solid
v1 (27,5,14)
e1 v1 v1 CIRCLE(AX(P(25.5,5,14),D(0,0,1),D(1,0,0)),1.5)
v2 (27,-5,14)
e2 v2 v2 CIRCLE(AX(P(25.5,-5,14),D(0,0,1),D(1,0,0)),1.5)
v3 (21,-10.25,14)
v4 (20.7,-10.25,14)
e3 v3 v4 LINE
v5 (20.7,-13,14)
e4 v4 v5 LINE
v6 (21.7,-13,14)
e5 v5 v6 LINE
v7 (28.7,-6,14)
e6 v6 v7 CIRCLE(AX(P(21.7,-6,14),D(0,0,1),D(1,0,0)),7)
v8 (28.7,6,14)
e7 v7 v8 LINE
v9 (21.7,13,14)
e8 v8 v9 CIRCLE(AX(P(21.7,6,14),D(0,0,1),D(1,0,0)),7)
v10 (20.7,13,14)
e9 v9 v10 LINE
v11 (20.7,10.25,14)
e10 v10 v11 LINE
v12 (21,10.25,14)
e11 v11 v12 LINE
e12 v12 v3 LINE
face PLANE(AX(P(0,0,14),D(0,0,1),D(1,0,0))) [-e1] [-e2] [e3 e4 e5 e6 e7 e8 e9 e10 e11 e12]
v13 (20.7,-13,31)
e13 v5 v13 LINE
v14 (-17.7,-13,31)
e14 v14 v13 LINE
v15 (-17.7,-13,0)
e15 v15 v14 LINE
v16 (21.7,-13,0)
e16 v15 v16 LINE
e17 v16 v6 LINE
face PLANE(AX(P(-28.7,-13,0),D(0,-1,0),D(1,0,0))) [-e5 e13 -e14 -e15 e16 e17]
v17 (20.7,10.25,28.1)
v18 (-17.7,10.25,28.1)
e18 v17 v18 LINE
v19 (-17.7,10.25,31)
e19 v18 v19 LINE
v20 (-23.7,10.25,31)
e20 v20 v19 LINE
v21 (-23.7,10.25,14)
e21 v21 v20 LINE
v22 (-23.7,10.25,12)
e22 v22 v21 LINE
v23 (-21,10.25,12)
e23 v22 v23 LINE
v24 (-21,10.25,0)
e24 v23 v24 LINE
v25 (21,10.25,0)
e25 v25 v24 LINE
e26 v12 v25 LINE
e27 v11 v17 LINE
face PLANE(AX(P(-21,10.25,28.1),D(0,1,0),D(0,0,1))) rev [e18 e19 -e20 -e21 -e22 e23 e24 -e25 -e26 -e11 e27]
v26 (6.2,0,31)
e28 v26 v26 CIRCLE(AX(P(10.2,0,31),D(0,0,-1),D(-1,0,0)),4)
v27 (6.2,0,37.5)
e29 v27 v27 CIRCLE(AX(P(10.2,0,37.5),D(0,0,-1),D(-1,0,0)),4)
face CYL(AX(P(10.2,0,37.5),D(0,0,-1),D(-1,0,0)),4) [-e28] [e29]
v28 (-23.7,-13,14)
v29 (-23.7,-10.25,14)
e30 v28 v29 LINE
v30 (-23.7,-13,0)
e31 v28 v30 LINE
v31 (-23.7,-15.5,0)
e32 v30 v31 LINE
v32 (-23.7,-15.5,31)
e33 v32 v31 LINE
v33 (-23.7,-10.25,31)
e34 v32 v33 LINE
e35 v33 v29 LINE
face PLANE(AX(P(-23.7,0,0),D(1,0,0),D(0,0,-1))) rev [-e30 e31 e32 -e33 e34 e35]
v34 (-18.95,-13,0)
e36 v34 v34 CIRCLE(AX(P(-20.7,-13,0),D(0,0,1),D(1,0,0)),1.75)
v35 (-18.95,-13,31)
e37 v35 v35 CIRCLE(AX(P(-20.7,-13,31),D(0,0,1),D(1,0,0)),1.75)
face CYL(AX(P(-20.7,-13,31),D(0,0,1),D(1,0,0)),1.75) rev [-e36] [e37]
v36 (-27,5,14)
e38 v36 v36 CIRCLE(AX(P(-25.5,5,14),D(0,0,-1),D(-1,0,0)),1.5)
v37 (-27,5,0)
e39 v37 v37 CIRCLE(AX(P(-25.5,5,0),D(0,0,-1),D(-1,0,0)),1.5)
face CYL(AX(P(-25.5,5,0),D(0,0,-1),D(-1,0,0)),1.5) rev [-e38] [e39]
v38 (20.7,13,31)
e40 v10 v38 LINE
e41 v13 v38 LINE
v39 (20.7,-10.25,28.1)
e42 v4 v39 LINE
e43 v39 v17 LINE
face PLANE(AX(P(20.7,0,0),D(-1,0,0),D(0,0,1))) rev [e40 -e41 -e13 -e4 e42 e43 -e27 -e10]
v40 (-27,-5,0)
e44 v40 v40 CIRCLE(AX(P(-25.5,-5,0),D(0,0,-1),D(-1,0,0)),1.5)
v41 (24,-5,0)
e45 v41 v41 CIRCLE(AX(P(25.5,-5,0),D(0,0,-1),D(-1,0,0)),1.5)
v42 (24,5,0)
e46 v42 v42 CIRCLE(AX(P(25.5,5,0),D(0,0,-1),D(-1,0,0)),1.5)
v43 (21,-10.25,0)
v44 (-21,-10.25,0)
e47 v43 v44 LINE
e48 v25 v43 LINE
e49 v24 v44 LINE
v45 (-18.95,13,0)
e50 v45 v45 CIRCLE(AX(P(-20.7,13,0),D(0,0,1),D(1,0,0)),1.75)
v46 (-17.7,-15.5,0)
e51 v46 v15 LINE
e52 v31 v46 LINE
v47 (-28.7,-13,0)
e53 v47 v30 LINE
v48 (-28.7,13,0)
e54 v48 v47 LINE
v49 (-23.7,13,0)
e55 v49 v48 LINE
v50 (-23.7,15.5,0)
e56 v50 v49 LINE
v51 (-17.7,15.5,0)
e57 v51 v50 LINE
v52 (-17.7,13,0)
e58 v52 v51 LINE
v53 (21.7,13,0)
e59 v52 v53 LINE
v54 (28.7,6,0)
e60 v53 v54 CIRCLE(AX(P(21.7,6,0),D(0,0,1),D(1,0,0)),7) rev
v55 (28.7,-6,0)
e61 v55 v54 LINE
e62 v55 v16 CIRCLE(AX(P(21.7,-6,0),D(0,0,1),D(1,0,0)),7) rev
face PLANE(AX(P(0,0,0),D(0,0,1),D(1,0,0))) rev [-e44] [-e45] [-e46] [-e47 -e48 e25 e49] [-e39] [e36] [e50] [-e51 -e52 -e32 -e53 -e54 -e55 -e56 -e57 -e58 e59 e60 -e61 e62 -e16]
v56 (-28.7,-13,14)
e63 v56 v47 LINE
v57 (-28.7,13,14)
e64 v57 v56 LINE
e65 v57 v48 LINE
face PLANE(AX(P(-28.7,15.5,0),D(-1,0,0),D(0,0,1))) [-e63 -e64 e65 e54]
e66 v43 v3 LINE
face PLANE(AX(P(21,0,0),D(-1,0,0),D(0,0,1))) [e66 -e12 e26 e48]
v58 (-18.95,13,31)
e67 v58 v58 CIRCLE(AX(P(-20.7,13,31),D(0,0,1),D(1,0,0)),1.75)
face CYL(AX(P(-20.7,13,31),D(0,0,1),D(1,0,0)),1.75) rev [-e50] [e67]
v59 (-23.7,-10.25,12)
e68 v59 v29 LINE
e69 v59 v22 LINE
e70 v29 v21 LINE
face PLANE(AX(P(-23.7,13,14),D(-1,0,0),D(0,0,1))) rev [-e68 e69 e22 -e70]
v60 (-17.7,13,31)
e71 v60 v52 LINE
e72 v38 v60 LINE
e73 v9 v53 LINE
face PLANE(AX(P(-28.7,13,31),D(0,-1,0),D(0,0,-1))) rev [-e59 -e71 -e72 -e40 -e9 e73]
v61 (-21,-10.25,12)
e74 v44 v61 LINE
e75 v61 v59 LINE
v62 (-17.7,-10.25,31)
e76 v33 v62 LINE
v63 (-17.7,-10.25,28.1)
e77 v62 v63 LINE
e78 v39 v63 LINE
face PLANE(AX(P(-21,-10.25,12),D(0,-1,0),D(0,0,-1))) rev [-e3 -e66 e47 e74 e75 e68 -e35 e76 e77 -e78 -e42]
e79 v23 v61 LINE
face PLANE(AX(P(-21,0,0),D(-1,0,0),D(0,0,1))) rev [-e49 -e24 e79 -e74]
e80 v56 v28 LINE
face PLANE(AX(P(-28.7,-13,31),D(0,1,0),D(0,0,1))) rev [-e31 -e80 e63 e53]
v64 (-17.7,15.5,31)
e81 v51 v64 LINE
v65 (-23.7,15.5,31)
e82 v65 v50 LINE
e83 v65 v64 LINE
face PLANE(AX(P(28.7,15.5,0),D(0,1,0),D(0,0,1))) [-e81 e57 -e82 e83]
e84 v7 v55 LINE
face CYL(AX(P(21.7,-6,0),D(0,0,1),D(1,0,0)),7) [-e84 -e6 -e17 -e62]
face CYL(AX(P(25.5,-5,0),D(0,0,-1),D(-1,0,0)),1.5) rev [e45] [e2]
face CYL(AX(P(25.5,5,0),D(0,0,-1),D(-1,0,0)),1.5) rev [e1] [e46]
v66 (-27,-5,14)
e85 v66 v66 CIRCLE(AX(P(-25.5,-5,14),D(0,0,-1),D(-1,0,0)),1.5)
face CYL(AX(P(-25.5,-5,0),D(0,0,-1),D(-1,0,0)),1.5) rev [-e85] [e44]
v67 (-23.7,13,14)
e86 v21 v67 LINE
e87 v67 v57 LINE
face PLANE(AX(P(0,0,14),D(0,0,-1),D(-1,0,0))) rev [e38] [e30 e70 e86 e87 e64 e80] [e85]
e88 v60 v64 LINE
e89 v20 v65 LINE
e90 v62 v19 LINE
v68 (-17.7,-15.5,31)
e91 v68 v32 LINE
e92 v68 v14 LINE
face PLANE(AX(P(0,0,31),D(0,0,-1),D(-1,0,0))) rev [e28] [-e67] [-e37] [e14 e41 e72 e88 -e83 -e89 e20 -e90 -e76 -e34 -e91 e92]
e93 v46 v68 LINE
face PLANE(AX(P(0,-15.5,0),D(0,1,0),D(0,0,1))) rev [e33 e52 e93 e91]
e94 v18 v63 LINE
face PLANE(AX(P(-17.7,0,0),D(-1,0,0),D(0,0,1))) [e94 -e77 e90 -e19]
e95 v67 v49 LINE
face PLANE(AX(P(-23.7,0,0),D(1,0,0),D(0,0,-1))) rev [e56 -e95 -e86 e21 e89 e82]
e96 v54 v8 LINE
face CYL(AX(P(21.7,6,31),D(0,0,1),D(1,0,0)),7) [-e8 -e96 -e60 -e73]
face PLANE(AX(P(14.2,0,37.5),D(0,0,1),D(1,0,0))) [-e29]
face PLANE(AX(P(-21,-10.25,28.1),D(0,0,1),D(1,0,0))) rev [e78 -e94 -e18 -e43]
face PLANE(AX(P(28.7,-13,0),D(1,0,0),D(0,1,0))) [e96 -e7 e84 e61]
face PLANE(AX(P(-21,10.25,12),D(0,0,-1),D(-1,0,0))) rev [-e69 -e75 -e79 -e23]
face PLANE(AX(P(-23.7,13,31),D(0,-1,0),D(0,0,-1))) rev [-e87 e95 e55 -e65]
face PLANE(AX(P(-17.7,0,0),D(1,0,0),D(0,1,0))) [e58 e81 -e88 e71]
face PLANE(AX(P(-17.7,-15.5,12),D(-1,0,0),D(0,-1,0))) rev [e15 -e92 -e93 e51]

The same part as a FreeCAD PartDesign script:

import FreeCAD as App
import Part
import Sketcher

V = App.Vector


def edges_at(feature, points):
    """Names of the edges that pass closest to the given points."""
    edges = feature.Shape.Edges
    near = lambda p: min(range(len(edges)), key=lambda i: edges[i].distToShape(Part.Vertex(*p))[0])
    return sorted({f"Edge{near(p) + 1}" for p in points})

doc = App.newDocument("Part")
body = doc.addObject("PartDesign::Body", "Body")

# Sketch on XY plane
sketch1 = body.newObject("Sketcher::SketchObject", "Sketch")
sketch1.AttachmentSupport = (doc.getObject("XY_Plane"), [""])
sketch1.MapMode = "FlatFace"
sketch1.AttachmentOffset = App.Placement(V(0, 0, 12), App.Rotation())
sketch1.addGeometry([
    Part.LineSegment(V(-29, 16, 0), V(-29, -13, 0)),
    Part.LineSegment(V(-29, -13, 0), V(29, -13, 0)),
    Part.LineSegment(V(29, -13, 0), V(29, 16, 0)),
    Part.LineSegment(V(29, 16, 0), V(-29, 16, 0)),
], False)
sketch1.addConstraint([
    Sketcher.Constraint("Coincident", 0, 2, 1, 1),
    Sketcher.Constraint("Coincident", 1, 2, 2, 1),
    Sketcher.Constraint("Coincident", 2, 2, 3, 1),
    Sketcher.Constraint("Coincident", 3, 2, 0, 1),
    Sketcher.Constraint("Vertical", 0),
    Sketcher.Constraint("Horizontal", 1),
    Sketcher.Constraint("Vertical", 2),
    Sketcher.Constraint("Horizontal", 3),
    Sketcher.Constraint("DistanceX", 1, 1, 1, 2, 57.4),
    Sketcher.Constraint("DistanceY", 0, 2, 0, 1, 28.5),
    Sketcher.Constraint("DistanceY", 0, 2, -1, 1, 13.0),
    Sketcher.Constraint("DistanceX", 0, 2, -1, 1, 28.7),
])
pad1 = body.newObject("PartDesign::Pad", "Pad")
pad1.Profile = sketch1
pad1.Length = 12
pad1.Reversed = True

# Sketch on XY plane
sketch2 = body.newObject("Sketcher::SketchObject", "Sketch001")
sketch2.AttachmentSupport = (doc.getObject("XY_Plane"), [""])
sketch2.MapMode = "FlatFace"
sketch2.AttachmentOffset = App.Placement(V(0, 0, 12), App.Rotation())
sketch2.addGeometry([
    Part.LineSegment(V(-29, 13, 0), V(-29, -13, 0)),
    Part.LineSegment(V(-29, -13, 0), V(29, -13, 0)),
    Part.LineSegment(V(29, -13, 0), V(29, 13, 0)),
    Part.LineSegment(V(29, 13, 0), V(-29, 13, 0)),
], False)
sketch2.addConstraint([
    Sketcher.Constraint("Coincident", 0, 2, 1, 1),
    Sketcher.Constraint("Coincident", 1, 2, 2, 1),
    Sketcher.Constraint("Coincident", 2, 2, 3, 1),
    Sketcher.Constraint("Coincident", 3, 2, 0, 1),
    Sketcher.Constraint("Vertical", 0),
    Sketcher.Constraint("Horizontal", 1),
    Sketcher.Constraint("Vertical", 2),
    Sketcher.Constraint("Horizontal", 3),
    Sketcher.Constraint("Symmetric", 0, 2, 2, 2, -1, 1),
    Sketcher.Constraint("DistanceY", 0, 2, 0, 1, 26.0),
    Sketcher.Constraint("DistanceX", 1, 1, 1, 2, 57.4),
])
pad2 = body.newObject("PartDesign::Pad", "Pad001")
pad2.Profile = sketch2
pad2.Length = 19

# Sketch on YZ plane
sketch3 = body.newObject("Sketcher::SketchObject", "Sketch002")
sketch3.AttachmentSupport = (doc.getObject("YZ_Plane"), [""])
sketch3.MapMode = "FlatFace"
sketch3.AttachmentOffset = App.Placement(V(0, 0, -28.7), App.Rotation())
sketch3.addGeometry([
    Part.LineSegment(V(10, 12, 0), V(-10, 12, 0)),
    Part.LineSegment(V(-10, 12, 0), V(-10, 28, 0)),
    Part.LineSegment(V(-10, 28, 0), V(10, 28, 0)),
    Part.LineSegment(V(10, 28, 0), V(10, 12, 0)),
], False)
sketch3.addConstraint([
    Sketcher.Constraint("Coincident", 0, 2, 1, 1),
    Sketcher.Constraint("Coincident", 1, 2, 2, 1),
    Sketcher.Constraint("Coincident", 2, 2, 3, 1),
    Sketcher.Constraint("Coincident", 3, 2, 0, 1),
    Sketcher.Constraint("Horizontal", 0),
    Sketcher.Constraint("Vertical", 1),
    Sketcher.Constraint("Horizontal", 2),
    Sketcher.Constraint("Vertical", 3),
    Sketcher.Constraint("DistanceX", 0, 2, 0, 1, 20.5),
    Sketcher.Constraint("DistanceY", 1, 1, 1, 2, 16.1),
    Sketcher.Constraint("DistanceY", -1, 1, 0, 2, 12.0),
    Sketcher.Constraint("DistanceX", 0, 2, -1, 1, 10.25),
])
pocket1 = body.newObject("PartDesign::Pocket", "Pocket")
pocket1.Profile = sketch3
pocket1.Length = 7.7
pocket1.Reversed = True

# Sketch on YZ plane
sketch4 = body.newObject("Sketcher::SketchObject", "Sketch003")
sketch4.AttachmentSupport = (doc.getObject("YZ_Plane"), [""])
sketch4.MapMode = "FlatFace"
sketch4.AttachmentOffset = App.Placement(V(0, 0, -21), App.Rotation())
sketch4.addGeometry([
    Part.LineSegment(V(10, 0, 0), V(-10, 0, 0)),
    Part.LineSegment(V(-10, 0, 0), V(-10, 28, 0)),
    Part.LineSegment(V(-10, 28, 0), V(10, 28, 0)),
    Part.LineSegment(V(10, 28, 0), V(10, 0, 0)),
], False)
sketch4.addConstraint([
    Sketcher.Constraint("Coincident", 0, 2, 1, 1),
    Sketcher.Constraint("Coincident", 1, 2, 2, 1),
    Sketcher.Constraint("Coincident", 2, 2, 3, 1),
    Sketcher.Constraint("Coincident", 3, 2, 0, 1),
    Sketcher.Constraint("Horizontal", 0),
    Sketcher.Constraint("Vertical", 1),
    Sketcher.Constraint("Horizontal", 2),
    Sketcher.Constraint("Vertical", 3),
    Sketcher.Constraint("Symmetric", 0, 2, 3, 2, -1, 1),
    Sketcher.Constraint("DistanceX", 0, 2, 0, 1, 20.5),
    Sketcher.Constraint("DistanceY", 1, 1, 1, 2, 28.1),
])
pocket2 = body.newObject("PartDesign::Pocket", "Pocket001")
pocket2.Profile = sketch4
pocket2.Length = 41.7
pocket2.Reversed = True

# Sketch on YZ plane
sketch5 = body.newObject("Sketcher::SketchObject", "Sketch004")
sketch5.AttachmentSupport = (doc.getObject("YZ_Plane"), [""])
sketch5.MapMode = "FlatFace"
sketch5.AttachmentOffset = App.Placement(V(0, 0, 20.7), App.Rotation())
sketch5.addGeometry([
    Part.LineSegment(V(10, 0, 0), V(-10, 0, 0)),
    Part.LineSegment(V(-10, 0, 0), V(-10, 31, 0)),
    Part.LineSegment(V(-10, 31, 0), V(10, 31, 0)),
    Part.LineSegment(V(10, 31, 0), V(10, 0, 0)),
], False)
sketch5.addConstraint([
    Sketcher.Constraint("Coincident", 0, 2, 1, 1),
    Sketcher.Constraint("Coincident", 1, 2, 2, 1),
    Sketcher.Constraint("Coincident", 2, 2, 3, 1),
    Sketcher.Constraint("Coincident", 3, 2, 0, 1),
    Sketcher.Constraint("Horizontal", 0),
    Sketcher.Constraint("Vertical", 1),
    Sketcher.Constraint("Horizontal", 2),
    Sketcher.Constraint("Vertical", 3),
    Sketcher.Constraint("Symmetric", 0, 2, 3, 2, -1, 1),
    Sketcher.Constraint("DistanceY", 1, 1, 1, 2, 31.0),
    Sketcher.Constraint("DistanceX", 0, 2, 0, 1, 20.5),
])
pocket3 = body.newObject("PartDesign::Pocket", "Pocket002")
pocket3.Profile = sketch5
pocket3.Length = 0.3
pocket3.Reversed = True

# Sketch on XY plane
sketch6 = body.newObject("Sketcher::SketchObject", "Sketch005")
sketch6.AttachmentSupport = (doc.getObject("XY_Plane"), [""])
sketch6.MapMode = "FlatFace"
sketch6.AttachmentOffset = App.Placement(V(0, 0, 31), App.Rotation())
sketch6.addGeometry([
    Part.LineSegment(V(28.7, -13, 0), V(28.7, 13, 0)),  # 0
    Part.LineSegment(V(28.7, 13, 0), V(20.7, 13, 0)),  # 1
    Part.LineSegment(V(20.7, 13, 0), V(20.7, 10.25, 0)),  # 2
    Part.LineSegment(V(20.7, 10.25, 0), V(21, 10.25, 0)),  # 3
    Part.LineSegment(V(21, 10.25, 0), V(21, -10.25, 0)),  # 4
    Part.LineSegment(V(21, -10.25, 0), V(20.7, -10.25, 0)),  # 5
    Part.LineSegment(V(20.7, -10.25, 0), V(20.7, -13, 0)),  # 6
    Part.LineSegment(V(20.7, -13, 0), V(28.7, -13, 0)),  # 7
], False)
sketch6.addConstraint([
    Sketcher.Constraint("Coincident", 0, 2, 1, 1),
    Sketcher.Constraint("Coincident", 1, 2, 2, 1),
    Sketcher.Constraint("Coincident", 2, 2, 3, 1),
    Sketcher.Constraint("Coincident", 3, 2, 4, 1),
    Sketcher.Constraint("Coincident", 4, 2, 5, 1),
    Sketcher.Constraint("Coincident", 5, 2, 6, 1),
    Sketcher.Constraint("Coincident", 6, 2, 7, 1),
    Sketcher.Constraint("Coincident", 7, 2, 0, 1),
    Sketcher.Constraint("Vertical", 0),
    Sketcher.Constraint("Horizontal", 1),
    Sketcher.Constraint("Vertical", 2),
    Sketcher.Constraint("Horizontal", 3),
    Sketcher.Constraint("Vertical", 4),
    Sketcher.Constraint("Horizontal", 5),
    Sketcher.Constraint("Vertical", 6),
    Sketcher.Constraint("Horizontal", 7),
    Sketcher.Constraint("Symmetric", 2, 2, 5, 2, -1),
    Sketcher.Constraint("Equal", 2, 6),
    Sketcher.Constraint("DistanceX", 1, 2, 1, 1, 8.0),
    Sketcher.Constraint("DistanceY", 0, 1, 0, 2, 26.0),
    Sketcher.Constraint("DistanceX", 3, 1, 3, 2, 0.3),
    Sketcher.Constraint("DistanceY", 4, 2, 4, 1, 20.5),
    Sketcher.Constraint("DistanceX", -1, 1, 3, 2, 21.0),
])
pocket4 = body.newObject("PartDesign::Pocket", "Pocket003")
pocket4.Profile = sketch6
pocket4.Length = 2.9

# Sketch on YZ plane
sketch7 = body.newObject("Sketcher::SketchObject", "Sketch006")
sketch7.AttachmentSupport = (doc.getObject("YZ_Plane"), [""])
sketch7.MapMode = "FlatFace"
sketch7.AttachmentOffset = App.Placement(V(0, 0, 28.7), App.Rotation())
sketch7.addGeometry([
    Part.LineSegment(V(15.5, 12, 0), V(13, 12, 0)),
    Part.LineSegment(V(13, 12, 0), V(13, 0, 0)),
    Part.LineSegment(V(13, 0, 0), V(15.5, 0, 0)),
    Part.LineSegment(V(15.5, 0, 0), V(15.5, 12, 0)),
], False)
sketch7.addConstraint([
    Sketcher.Constraint("Coincident", 0, 2, 1, 1),
    Sketcher.Constraint("Coincident", 1, 2, 2, 1),
    Sketcher.Constraint("Coincident", 2, 2, 3, 1),
    Sketcher.Constraint("Coincident", 3, 2, 0, 1),
    Sketcher.Constraint("Horizontal", 0),
    Sketcher.Constraint("Vertical", 1),
    Sketcher.Constraint("Horizontal", 2),
    Sketcher.Constraint("Vertical", 3),
    Sketcher.Constraint("PointOnObject", 1, 2, -1),
    Sketcher.Constraint("DistanceY", 1, 2, 1, 1, 12.0),
    Sketcher.Constraint("DistanceX", 0, 2, 0, 1, 2.5),
    Sketcher.Constraint("DistanceX", -1, 1, 0, 2, 13.0),
])
pocket5 = body.newObject("PartDesign::Pocket", "Pocket004")
pocket5.Profile = sketch7
pocket5.Length = 46.4

# Sketch on YZ plane
sketch8 = body.newObject("Sketcher::SketchObject", "Sketch007")
sketch8.AttachmentSupport = (doc.getObject("YZ_Plane"), [""])
sketch8.MapMode = "FlatFace"
sketch8.AttachmentOffset = App.Placement(V(0, 0, -28.7), App.Rotation())
sketch8.addGeometry([
    Part.LineSegment(V(-13, 12, 0), V(-13, 31, 0)),  # 0
    Part.LineSegment(V(-13, 31, 0), V(13, 31, 0)),  # 1
    Part.LineSegment(V(13, 31, 0), V(13, 12, 0)),  # 2
    Part.LineSegment(V(13, 12, 0), V(10.2, 12, 0)),  # 3
    Part.LineSegment(V(10.2, 12, 0), V(10.2, 28.1, 0)),  # 4
    Part.LineSegment(V(10.2, 28.1, 0), V(-10.2, 28.1, 0)),  # 5
    Part.LineSegment(V(-10.2, 28.1, 0), V(-10.2, 12, 0)),  # 6
    Part.LineSegment(V(-10.2, 12, 0), V(-13, 12, 0)),  # 7
], False)
sketch8.addConstraint([
    Sketcher.Constraint("Coincident", 0, 2, 1, 1),
    Sketcher.Constraint("Coincident", 1, 2, 2, 1),
    Sketcher.Constraint("Coincident", 2, 2, 3, 1),
    Sketcher.Constraint("Coincident", 3, 2, 4, 1),
    Sketcher.Constraint("Coincident", 4, 2, 5, 1),
    Sketcher.Constraint("Coincident", 5, 2, 6, 1),
    Sketcher.Constraint("Coincident", 6, 2, 7, 1),
    Sketcher.Constraint("Coincident", 7, 2, 0, 1),
    Sketcher.Constraint("Vertical", 0),
    Sketcher.Constraint("Horizontal", 1),
    Sketcher.Constraint("Vertical", 2),
    Sketcher.Constraint("Horizontal", 3),
    Sketcher.Constraint("Vertical", 4),
    Sketcher.Constraint("Horizontal", 5),
    Sketcher.Constraint("Vertical", 6),
    Sketcher.Constraint("Horizontal", 7),
    Sketcher.Constraint("Symmetric", 3, 2, 6, 2, -2),
    Sketcher.Constraint("Equal", 3, 7),
    Sketcher.Constraint("DistanceX", 1, 1, 1, 2, 26.0),
    Sketcher.Constraint("DistanceY", 0, 1, 0, 2, 19.0),
    Sketcher.Constraint("DistanceX", 5, 2, 5, 1, 20.5),
    Sketcher.Constraint("DistanceY", 4, 1, 4, 2, 16.1),
    Sketcher.Constraint("DistanceY", -1, 1, 0, 2, 31.0),
])
pocket6 = body.newObject("PartDesign::Pocket", "Pocket005")
pocket6.Profile = sketch8
pocket6.Length = 7.7
pocket6.Reversed = True

# Sketch on XY plane
sketch9 = body.newObject("Sketcher::SketchObject", "Sketch008")
sketch9.AttachmentSupport = (doc.getObject("XY_Plane"), [""])
sketch9.MapMode = "FlatFace"
sketch9.AttachmentOffset = App.Placement(V(0, 0, 28.1), App.Rotation())
sketch9.addGeometry([
    Part.LineSegment(V(28.7, -13, 0), V(28.7, 13, 0)),  # 0
    Part.LineSegment(V(28.7, 13, 0), V(20.7, 13, 0)),  # 1
    Part.LineSegment(V(20.7, 13, 0), V(20.7, 10.25, 0)),  # 2
    Part.LineSegment(V(20.7, 10.25, 0), V(21, 10.25, 0)),  # 3
    Part.LineSegment(V(21, 10.25, 0), V(21, -10.25, 0)),  # 4
    Part.LineSegment(V(21, -10.25, 0), V(20.7, -10.25, 0)),  # 5
    Part.LineSegment(V(20.7, -10.25, 0), V(20.7, -13, 0)),  # 6
    Part.LineSegment(V(20.7, -13, 0), V(28.7, -13, 0)),  # 7
], False)
sketch9.addConstraint([
    Sketcher.Constraint("Coincident", 0, 2, 1, 1),
    Sketcher.Constraint("Coincident", 1, 2, 2, 1),
    Sketcher.Constraint("Coincident", 2, 2, 3, 1),
    Sketcher.Constraint("Coincident", 3, 2, 4, 1),
    Sketcher.Constraint("Coincident", 4, 2, 5, 1),
    Sketcher.Constraint("Coincident", 5, 2, 6, 1),
    Sketcher.Constraint("Coincident", 6, 2, 7, 1),
    Sketcher.Constraint("Coincident", 7, 2, 0, 1),
    Sketcher.Constraint("Vertical", 0),
    Sketcher.Constraint("Horizontal", 1),
    Sketcher.Constraint("Vertical", 2),
    Sketcher.Constraint("Horizontal", 3),
    Sketcher.Constraint("Vertical", 4),
    Sketcher.Constraint("Horizontal", 5),
    Sketcher.Constraint("Vertical", 6),
    Sketcher.Constraint("Horizontal", 7),
    Sketcher.Constraint("Symmetric", 2, 2, 5, 2, -1),
    Sketcher.Constraint("Equal", 2, 6),
    Sketcher.Constraint("DistanceX", 1, 2, 1, 1, 8.0),
    Sketcher.Constraint("DistanceY", 0, 1, 0, 2, 26.0),
    Sketcher.Constraint("DistanceX", 3, 1, 3, 2, 0.3),
    Sketcher.Constraint("DistanceY", 4, 2, 4, 1, 20.5),
    Sketcher.Constraint("DistanceX", -1, 1, 3, 2, 21.0),
])
pocket7 = body.newObject("PartDesign::Pocket", "Pocket006")
pocket7.Profile = sketch9
pocket7.Length = 14.1

# Sketch on YZ plane
sketch10 = body.newObject("Sketcher::SketchObject", "Sketch009")
sketch10.AttachmentSupport = (doc.getObject("YZ_Plane"), [""])
sketch10.MapMode = "FlatFace"
sketch10.AttachmentOffset = App.Placement(V(0, 0, -21), App.Rotation())
sketch10.addGeometry([
    Part.LineSegment(V(-13, 12, 0), V(-13, 31, 0)),  # 0
    Part.LineSegment(V(-13, 31, 0), V(13, 31, 0)),  # 1
    Part.LineSegment(V(13, 31, 0), V(13, 12, 0)),  # 2
    Part.LineSegment(V(13, 12, 0), V(10.2, 12, 0)),  # 3
    Part.LineSegment(V(10.2, 12, 0), V(10.2, 28.1, 0)),  # 4
    Part.LineSegment(V(10.2, 28.1, 0), V(-10.2, 28.1, 0)),  # 5
    Part.LineSegment(V(-10.2, 28.1, 0), V(-10.2, 12, 0)),  # 6
    Part.LineSegment(V(-10.2, 12, 0), V(-13, 12, 0)),  # 7
], False)
sketch10.addConstraint([
    Sketcher.Constraint("Coincident", 0, 2, 1, 1),
    Sketcher.Constraint("Coincident", 1, 2, 2, 1),
    Sketcher.Constraint("Coincident", 2, 2, 3, 1),
    Sketcher.Constraint("Coincident", 3, 2, 4, 1),
    Sketcher.Constraint("Coincident", 4, 2, 5, 1),
    Sketcher.Constraint("Coincident", 5, 2, 6, 1),
    Sketcher.Constraint("Coincident", 6, 2, 7, 1),
    Sketcher.Constraint("Coincident", 7, 2, 0, 1),
    Sketcher.Constraint("Vertical", 0),
    Sketcher.Constraint("Horizontal", 1),
    Sketcher.Constraint("Vertical", 2),
    Sketcher.Constraint("Horizontal", 3),
    Sketcher.Constraint("Vertical", 4),
    Sketcher.Constraint("Horizontal", 5),
    Sketcher.Constraint("Vertical", 6),
    Sketcher.Constraint("Horizontal", 7),
    Sketcher.Constraint("Symmetric", 3, 2, 6, 2, -2),
    Sketcher.Constraint("Equal", 3, 7),
    Sketcher.Constraint("DistanceX", 1, 1, 1, 2, 26.0),
    Sketcher.Constraint("DistanceY", 0, 1, 0, 2, 19.0),
    Sketcher.Constraint("DistanceX", 5, 2, 5, 1, 20.5),
    Sketcher.Constraint("DistanceY", 4, 1, 4, 2, 16.1),
    Sketcher.Constraint("DistanceY", -1, 1, 0, 2, 31.0),
])
pocket8 = body.newObject("PartDesign::Pocket", "Pocket007")
pocket8.Profile = sketch10
pocket8.Length = 3.3
pocket8.Reversed = True

# Sketch on XZ plane
sketch11 = body.newObject("Sketcher::SketchObject", "Sketch010")
sketch11.AttachmentSupport = (doc.getObject("XZ_Plane"), [""])
sketch11.MapMode = "FlatFace"
sketch11.AttachmentOffset = App.Placement(V(0, 0, 13), App.Rotation())
sketch11.addGeometry([
    Part.LineSegment(V(-29, 12, 0), V(-29, 0, 0)),
    Part.LineSegment(V(-29, 0, 0), V(-18, 0, 0)),
    Part.LineSegment(V(-18, 0, 0), V(-18, 12, 0)),
    Part.LineSegment(V(-18, 12, 0), V(-29, 12, 0)),
], False)
sketch11.addConstraint([
    Sketcher.Constraint("Coincident", 0, 2, 1, 1),
    Sketcher.Constraint("Coincident", 1, 2, 2, 1),
    Sketcher.Constraint("Coincident", 2, 2, 3, 1),
    Sketcher.Constraint("Coincident", 3, 2, 0, 1),
    Sketcher.Constraint("Vertical", 0),
    Sketcher.Constraint("Horizontal", 1),
    Sketcher.Constraint("Vertical", 2),
    Sketcher.Constraint("Horizontal", 3),
    Sketcher.Constraint("PointOnObject", 0, 2, -1),
    Sketcher.Constraint("DistanceX", 1, 1, 1, 2, 11.0),
    Sketcher.Constraint("DistanceY", 0, 2, 0, 1, 12.0),
    Sketcher.Constraint("DistanceX", 0, 2, -1, 1, 28.7),
])
pad3 = body.newObject("PartDesign::Pad", "Pad002")
pad3.Profile = sketch11
pad3.Length = 2.5

# Sketch on YZ plane
sketch12 = body.newObject("Sketcher::SketchObject", "Sketch011")
sketch12.AttachmentSupport = (doc.getObject("YZ_Plane"), [""])
sketch12.MapMode = "FlatFace"
sketch12.AttachmentOffset = App.Placement(V(0, 0, -17.7), App.Rotation())
sketch12.addGeometry([
    Part.LineSegment(V(-10.2, 19, 0), V(-13, 19, 0)),
    Part.LineSegment(V(-13, 19, 0), V(-13, 31, 0)),
    Part.LineSegment(V(-13, 31, 0), V(-10.2, 31, 0)),
    Part.LineSegment(V(-10.2, 31, 0), V(-10.2, 19, 0)),
], False)
sketch12.addConstraint([
    Sketcher.Constraint("Coincident", 0, 2, 1, 1),
    Sketcher.Constraint("Coincident", 1, 2, 2, 1),
    Sketcher.Constraint("Coincident", 2, 2, 3, 1),
    Sketcher.Constraint("Coincident", 3, 2, 0, 1),
    Sketcher.Constraint("Horizontal", 0),
    Sketcher.Constraint("Vertical", 1),
    Sketcher.Constraint("Horizontal", 2),
    Sketcher.Constraint("Vertical", 3),
    Sketcher.Constraint("DistanceY", 1, 1, 1, 2, 12.0),
    Sketcher.Constraint("DistanceX", 0, 2, -1, 1, 13.0),
    Sketcher.Constraint("DistanceY", -1, 1, 0, 2, 19.0),
    Sketcher.Constraint("DistanceX", 0, 2, 0, 1, 2.75),
])
pad4 = body.newObject("PartDesign::Pad", "Pad003")
pad4.Profile = sketch12
pad4.Length = 6
pad4.Reversed = True

# Sketch on XZ plane
sketch13 = body.newObject("Sketcher::SketchObject", "Sketch012")
sketch13.AttachmentSupport = (doc.getObject("XZ_Plane"), [""])
sketch13.MapMode = "FlatFace"
sketch13.AttachmentOffset = App.Placement(V(0, 0, 13), App.Rotation())
sketch13.addGeometry([
    Part.LineSegment(V(-24, 31, 0), V(-24, 19, 0)),
    Part.LineSegment(V(-24, 19, 0), V(-18, 19, 0)),
    Part.LineSegment(V(-18, 19, 0), V(-18, 31, 0)),
    Part.LineSegment(V(-18, 31, 0), V(-24, 31, 0)),
], False)
sketch13.addConstraint([
    Sketcher.Constraint("Coincident", 0, 2, 1, 1),
    Sketcher.Constraint("Coincident", 1, 2, 2, 1),
    Sketcher.Constraint("Coincident", 2, 2, 3, 1),
    Sketcher.Constraint("Coincident", 3, 2, 0, 1),
    Sketcher.Constraint("Vertical", 0),
    Sketcher.Constraint("Horizontal", 1),
    Sketcher.Constraint("Vertical", 2),
    Sketcher.Constraint("Horizontal", 3),
    Sketcher.Constraint("DistanceX", 1, 1, 1, 2, 6.0),
    Sketcher.Constraint("DistanceY", 0, 2, 0, 1, 12.0),
    Sketcher.Constraint("DistanceY", -1, 1, 0, 2, 19.0),
    Sketcher.Constraint("DistanceX", 0, 2, -1, 1, 23.7),
])
pad5 = body.newObject("PartDesign::Pad", "Pad004")
pad5.Profile = sketch13
pad5.Length = 2.5

# Sketch on YZ plane
sketch14 = body.newObject("Sketcher::SketchObject", "Sketch013")
sketch14.AttachmentSupport = (doc.getObject("YZ_Plane"), [""])
sketch14.MapMode = "FlatFace"
sketch14.AttachmentOffset = App.Placement(V(0, 0, -17.7), App.Rotation())
sketch14.addGeometry([
    Part.LineSegment(V(16, 19, 0), V(10, 19, 0)),
    Part.LineSegment(V(10, 19, 0), V(10, 31, 0)),
    Part.LineSegment(V(10, 31, 0), V(16, 31, 0)),
    Part.LineSegment(V(16, 31, 0), V(16, 19, 0)),
], False)
sketch14.addConstraint([
    Sketcher.Constraint("Coincident", 0, 2, 1, 1),
    Sketcher.Constraint("Coincident", 1, 2, 2, 1),
    Sketcher.Constraint("Coincident", 2, 2, 3, 1),
    Sketcher.Constraint("Coincident", 3, 2, 0, 1),
    Sketcher.Constraint("Horizontal", 0),
    Sketcher.Constraint("Vertical", 1),
    Sketcher.Constraint("Horizontal", 2),
    Sketcher.Constraint("Vertical", 3),
    Sketcher.Constraint("DistanceY", 1, 1, 1, 2, 12.0),
    Sketcher.Constraint("DistanceY", -1, 1, 0, 2, 19.0),
    Sketcher.Constraint("DistanceX", 0, 2, 0, 1, 5.25),
    Sketcher.Constraint("DistanceX", -1, 1, 2, 2, 15.5),
])
pad6 = body.newObject("PartDesign::Pad", "Pad005")
pad6.Profile = sketch14
pad6.Length = 6
pad6.Reversed = True

# Sketch on XY plane
sketch15 = body.newObject("Sketcher::SketchObject", "Sketch014")
sketch15.AttachmentSupport = (doc.getObject("XY_Plane"), [""])
sketch15.MapMode = "FlatFace"
sketch15.addGeometry([
    Part.LineSegment(V(-23.7, -13, 0), V(-23.7, -15.5, 0)),
    Part.LineSegment(V(-23.7, -15.5, 0), V(-28.7, -15.5, 0)),
    Part.LineSegment(V(-28.7, -15.5, 0), V(-28.7, -13, 0)),
    Part.LineSegment(V(-28.7, -13, 0), V(-23.7, -13, 0)),
], False)
sketch15.addConstraint([
    Sketcher.Constraint("Coincident", 0, 2, 1, 1),
    Sketcher.Constraint("Coincident", 1, 2, 2, 1),
    Sketcher.Constraint("Coincident", 2, 2, 3, 1),
    Sketcher.Constraint("Coincident", 3, 2, 0, 1),
    Sketcher.Constraint("Vertical", 0),
    Sketcher.Constraint("Horizontal", 1),
    Sketcher.Constraint("Vertical", 2),
    Sketcher.Constraint("Horizontal", 3),
    Sketcher.Constraint("DistanceX", 1, 2, 1, 1, 5.0),
    Sketcher.Constraint("DistanceY", 0, 2, 0, 1, 2.5),
    Sketcher.Constraint("DistanceY", 2, 2, -1, 1, 13.0),
    Sketcher.Constraint("DistanceX", 0, 2, -1, 1, 23.7),
])
pocket9 = body.newObject("PartDesign::Pocket", "Pocket008")
pocket9.Profile = sketch15
pocket9.Type = "ThroughAll"
pocket9.Reversed = True

# Sketch on XY plane
sketch16 = body.newObject("Sketcher::SketchObject", "Sketch015")
sketch16.AttachmentSupport = (doc.getObject("XY_Plane"), [""])
sketch16.MapMode = "FlatFace"
sketch16.addGeometry([
    Part.LineSegment(V(-23.7, 15.5, 0), V(-23.7, 13, 0)),
    Part.LineSegment(V(-23.7, 13, 0), V(-28.7, 13, 0)),
    Part.LineSegment(V(-28.7, 13, 0), V(-28.7, 15.5, 0)),
    Part.LineSegment(V(-28.7, 15.5, 0), V(-23.7, 15.5, 0)),
], False)
sketch16.addConstraint([
    Sketcher.Constraint("Coincident", 0, 2, 1, 1),
    Sketcher.Constraint("Coincident", 1, 2, 2, 1),
    Sketcher.Constraint("Coincident", 2, 2, 3, 1),
    Sketcher.Constraint("Coincident", 3, 2, 0, 1),
    Sketcher.Constraint("Vertical", 0),
    Sketcher.Constraint("Horizontal", 1),
    Sketcher.Constraint("Vertical", 2),
    Sketcher.Constraint("Horizontal", 3),
    Sketcher.Constraint("DistanceX", 1, 2, 1, 1, 5.0),
    Sketcher.Constraint("DistanceY", 0, 2, 0, 1, 2.5),
    Sketcher.Constraint("DistanceY", -1, 1, 0, 2, 13.0),
    Sketcher.Constraint("DistanceX", 0, 2, -1, 1, 23.7),
])
pocket10 = body.newObject("PartDesign::Pocket", "Pocket009")
pocket10.Profile = sketch16
pocket10.Type = "ThroughAll"
pocket10.Reversed = True

# Sketch on XY plane
sketch17 = body.newObject("Sketcher::SketchObject", "Sketch016")
sketch17.AttachmentSupport = (doc.getObject("XY_Plane"), [""])
sketch17.MapMode = "FlatFace"
sketch17.AttachmentOffset = App.Placement(V(0, 0, 12), App.Rotation())
sketch17.addGeometry([
    Part.LineSegment(V(-29, 13, 0), V(-29, -13, 0)),
    Part.LineSegment(V(-29, -13, 0), V(-24, -13, 0)),
    Part.LineSegment(V(-24, -13, 0), V(-24, 13, 0)),
    Part.LineSegment(V(-24, 13, 0), V(-29, 13, 0)),
], False)
sketch17.addConstraint([
    Sketcher.Constraint("Coincident", 0, 2, 1, 1),
    Sketcher.Constraint("Coincident", 1, 2, 2, 1),
    Sketcher.Constraint("Coincident", 2, 2, 3, 1),
    Sketcher.Constraint("Coincident", 3, 2, 0, 1),
    Sketcher.Constraint("Vertical", 0),
    Sketcher.Constraint("Horizontal", 1),
    Sketcher.Constraint("Vertical", 2),
    Sketcher.Constraint("Horizontal", 3),
    Sketcher.Constraint("DistanceX", 1, 1, 1, 2, 5.0),
    Sketcher.Constraint("DistanceY", 0, 2, 0, 1, 26.0),
    Sketcher.Constraint("DistanceY", 0, 2, -1, 1, 13.0),
    Sketcher.Constraint("DistanceX", 0, 2, -1, 1, 28.7),
])
pad7 = body.newObject("PartDesign::Pad", "Pad006")
pad7.Profile = sketch17
pad7.Length = 2

# Sketch on XZ plane
sketch18 = body.newObject("Sketcher::SketchObject", "Sketch017")
sketch18.AttachmentSupport = (doc.getObject("XZ_Plane"), [""])
sketch18.MapMode = "FlatFace"
sketch18.addGeometry([
    Part.LineSegment(V(10.2, 37.5, 0), V(10.2, 31, 0)),
    Part.LineSegment(V(10.2, 31, 0), V(14.2, 31, 0)),
    Part.LineSegment(V(14.2, 31, 0), V(14.2, 37.5, 0)),
    Part.LineSegment(V(14.2, 37.5, 0), V(10.2, 37.5, 0)),
], False)
sketch18.addGeometry(Part.LineSegment(V(10.2, 37.5, 0), V(10.2, 31, 0)), True)  # axis
sketch18.addConstraint([
    Sketcher.Constraint("Coincident", 0, 2, 1, 1),
    Sketcher.Constraint("Coincident", 1, 2, 2, 1),
    Sketcher.Constraint("Coincident", 2, 2, 3, 1),
    Sketcher.Constraint("Coincident", 3, 2, 0, 1),
    Sketcher.Constraint("Vertical", 0),
    Sketcher.Constraint("Horizontal", 1),
    Sketcher.Constraint("Vertical", 2),
    Sketcher.Constraint("Horizontal", 3),
    Sketcher.Constraint("Vertical", 4),
    Sketcher.Constraint("Coincident", 4, 1, 3, 2),
    Sketcher.Constraint("Horizontal", 1, 2, 4, 2),
    Sketcher.Constraint("DistanceX", 1, 1, 1, 2, 4.0),
    Sketcher.Constraint("DistanceY", 0, 2, 0, 1, 6.5),
    Sketcher.Constraint("DistanceY", -1, 1, 0, 2, 31.0),
    Sketcher.Constraint("DistanceX", -1, 1, 0, 2, 10.2),
])
revolution = body.newObject("PartDesign::Revolution", "Revolution")
revolution.Profile = sketch18
revolution.ReferenceAxis = (sketch18, ["Axis0"])
revolution.Angle = 360

# Sketch on XY plane
sketch19 = body.newObject("Sketcher::SketchObject", "Sketch018")
sketch19.AttachmentSupport = (doc.getObject("XY_Plane"), [""])
sketch19.MapMode = "FlatFace"
sketch19.AttachmentOffset = App.Placement(V(0, 0, 31), App.Rotation())
sketch19.addGeometry([
    Part.Circle(V(-20.7, 13, 0), V(0, 0, 1), 1.8),
    Part.Circle(V(-20.7, -13, 0), V(0, 0, 1), 1.8),
], False)
sketch19.addConstraint([
    Sketcher.Constraint("Equal", 0, 1),
    Sketcher.Constraint("Symmetric", 0, 3, 1, 3, -1),
    Sketcher.Constraint("Diameter", 0, 3.5),
    Sketcher.Constraint("DistanceY", -1, 1, 0, 3, 13.0),
    Sketcher.Constraint("DistanceX", 0, 3, -1, 1, 20.7),
])
doc.recompute()
hole = body.newObject("PartDesign::Hole", "Hole")
hole.Profile = sketch19
hole.ThreadType = "None"
hole.Diameter = 3.5
hole.DepthType = "Dimension"
hole.Depth = 12
hole.DrillPoint = "Flat"

# Sketch on XY plane
sketch20 = body.newObject("Sketcher::SketchObject", "Sketch019")
sketch20.AttachmentSupport = (doc.getObject("XY_Plane"), [""])
sketch20.MapMode = "FlatFace"
sketch20.addGeometry([
    Part.Circle(V(25.5, -5, 0), V(0, 0, 1), 1.5),
    Part.Circle(V(25.5, 5, 0), V(0, 0, 1), 1.5),
    Part.Circle(V(-25.5, -5, 0), V(0, 0, 1), 1.5),
    Part.Circle(V(-25.5, 5, 0), V(0, 0, 1), 1.5),
], False)
sketch20.addConstraint([
    Sketcher.Constraint("Equal", 0, 1),
    Sketcher.Constraint("Equal", 1, 2),
    Sketcher.Constraint("Equal", 2, 3),
    Sketcher.Constraint("Symmetric", 1, 3, 2, 3, -1, 1),
    Sketcher.Constraint("Symmetric", 0, 3, 3, 3, -1, 1),
    Sketcher.Constraint("Symmetric", 0, 3, 2, 3, -2),
    Sketcher.Constraint("Diameter", 0, 3.0),
    Sketcher.Constraint("DistanceY", 0, 3, -1, 1, 5.0),
    Sketcher.Constraint("DistanceX", 2, 3, 0, 3, 51.0),
])
doc.recompute()
hole2 = body.newObject("PartDesign::Hole", "Hole001")
hole2.Profile = sketch20
hole2.ThreadType = "None"
hole2.Diameter = 3
hole2.DepthType = "Dimension"
hole2.Depth = 37.5
hole2.DrillPoint = "Flat"
hole2.Reversed = True

# Sketch on XY plane
sketch21 = body.newObject("Sketcher::SketchObject", "Sketch020")
sketch21.AttachmentSupport = (doc.getObject("XY_Plane"), [""])
sketch21.MapMode = "FlatFace"
sketch21.AttachmentOffset = App.Placement(V(0, 0, 12), App.Rotation())
sketch21.addGeometry([
    Part.Circle(V(-20.7, 13, 0), V(0, 0, 1), 1.8),
    Part.Circle(V(-20.7, -13, 0), V(0, 0, 1), 1.8),
], False)
sketch21.addConstraint([
    Sketcher.Constraint("Equal", 0, 1),
    Sketcher.Constraint("Symmetric", 0, 3, 1, 3, -1),
    Sketcher.Constraint("Diameter", 0, 3.5),
    Sketcher.Constraint("DistanceY", -1, 1, 0, 3, 13.0),
    Sketcher.Constraint("DistanceX", 0, 3, -1, 1, 20.7),
])
doc.recompute()
hole3 = body.newObject("PartDesign::Hole", "Hole002")
hole3.Profile = sketch21
hole3.ThreadType = "None"
hole3.Diameter = 3.5
hole3.DepthType = "ThroughAll"
doc.recompute()

fillet = body.newObject("PartDesign::Fillet", "Fillet")
fillet.Base = (hole3, edges_at(hole3, [(28.7, 13, 7), (28.7, -13, 7)]))
fillet.Radius = 7

# Sketch on XY plane
sketch22 = body.newObject("Sketcher::SketchObject", "Sketch021")
sketch22.AttachmentSupport = (doc.getObject("XY_Plane"), [""])
sketch22.MapMode = "FlatFace"
sketch22.AttachmentOffset = App.Placement(V(0, 0, 12), App.Rotation())
sketch22.addGeometry([
    Part.LineSegment(V(-23.7, 15.5, 0), V(-23.7, 10.2, 0)),  # 0
    Part.LineSegment(V(-23.7, 10.2, 0), V(-17.7, 10.2, 0)),  # 1
    Part.LineSegment(V(-17.7, 10.2, 0), V(-17.7, 15.5, 0)),  # 2
    Part.LineSegment(V(-17.7, 15.5, 0), V(-23.7, 15.5, 0)),  # 3
    Part.Circle(V(-20.7, 13, 0), V(0, 0, 1), 1.8),  # 4
    Part.LineSegment(V(-23.7, -10.2, 0), V(-23.7, -15.5, 0)),  # 5
    Part.LineSegment(V(-23.7, -15.5, 0), V(-17.7, -15.5, 0)),  # 6
    Part.LineSegment(V(-17.7, -15.5, 0), V(-17.7, -10.2, 0)),  # 7
    Part.LineSegment(V(-17.7, -10.2, 0), V(-23.7, -10.2, 0)),  # 8
    Part.Circle(V(-20.7, -13, 0), V(0, 0, 1), 1.8),  # 9
], False)
sketch22.addConstraint([
    Sketcher.Constraint("Coincident", 0, 2, 1, 1),
    Sketcher.Constraint("Coincident", 1, 2, 2, 1),
    Sketcher.Constraint("Coincident", 2, 2, 3, 1),
    Sketcher.Constraint("Coincident", 3, 2, 0, 1),
    Sketcher.Constraint("Coincident", 5, 2, 6, 1),
    Sketcher.Constraint("Coincident", 6, 2, 7, 1),
    Sketcher.Constraint("Coincident", 7, 2, 8, 1),
    Sketcher.Constraint("Coincident", 8, 2, 5, 1),
    Sketcher.Constraint("Vertical", 0),
    Sketcher.Constraint("Horizontal", 1),
    Sketcher.Constraint("Vertical", 2),
    Sketcher.Constraint("Horizontal", 3),
    Sketcher.Constraint("Vertical", 5),
    Sketcher.Constraint("Horizontal", 6),
    Sketcher.Constraint("Vertical", 7),
    Sketcher.Constraint("Horizontal", 8),
    Sketcher.Constraint("Equal", 4, 9),
    Sketcher.Constraint("Symmetric", 4, 3, 9, 3, -1),
    Sketcher.Constraint("Symmetric", 3, 2, 5, 2, -1),
    Sketcher.Constraint("Symmetric", 1, 2, 7, 2, -1),
    Sketcher.Constraint("Diameter", 4, 3.5),
    Sketcher.Constraint("DistanceX", 1, 1, 1, 2, 6.0),
    Sketcher.Constraint("DistanceY", -1, 1, 4, 3, 13.0),
    Sketcher.Constraint("DistanceX", 0, 2, 4, 3, 3.0),
    Sketcher.Constraint("DistanceY", 5, 2, 3, 2, 31.0),
    Sketcher.Constraint("DistanceY", 0, 2, 0, 1, 5.25),
    Sketcher.Constraint("DistanceX", 4, 3, -1, 1, 20.7),
])
pad8 = body.newObject("PartDesign::Pad", "Pad007")
pad8.Profile = sketch22
pad8.Length = 7

doc.recompute()
